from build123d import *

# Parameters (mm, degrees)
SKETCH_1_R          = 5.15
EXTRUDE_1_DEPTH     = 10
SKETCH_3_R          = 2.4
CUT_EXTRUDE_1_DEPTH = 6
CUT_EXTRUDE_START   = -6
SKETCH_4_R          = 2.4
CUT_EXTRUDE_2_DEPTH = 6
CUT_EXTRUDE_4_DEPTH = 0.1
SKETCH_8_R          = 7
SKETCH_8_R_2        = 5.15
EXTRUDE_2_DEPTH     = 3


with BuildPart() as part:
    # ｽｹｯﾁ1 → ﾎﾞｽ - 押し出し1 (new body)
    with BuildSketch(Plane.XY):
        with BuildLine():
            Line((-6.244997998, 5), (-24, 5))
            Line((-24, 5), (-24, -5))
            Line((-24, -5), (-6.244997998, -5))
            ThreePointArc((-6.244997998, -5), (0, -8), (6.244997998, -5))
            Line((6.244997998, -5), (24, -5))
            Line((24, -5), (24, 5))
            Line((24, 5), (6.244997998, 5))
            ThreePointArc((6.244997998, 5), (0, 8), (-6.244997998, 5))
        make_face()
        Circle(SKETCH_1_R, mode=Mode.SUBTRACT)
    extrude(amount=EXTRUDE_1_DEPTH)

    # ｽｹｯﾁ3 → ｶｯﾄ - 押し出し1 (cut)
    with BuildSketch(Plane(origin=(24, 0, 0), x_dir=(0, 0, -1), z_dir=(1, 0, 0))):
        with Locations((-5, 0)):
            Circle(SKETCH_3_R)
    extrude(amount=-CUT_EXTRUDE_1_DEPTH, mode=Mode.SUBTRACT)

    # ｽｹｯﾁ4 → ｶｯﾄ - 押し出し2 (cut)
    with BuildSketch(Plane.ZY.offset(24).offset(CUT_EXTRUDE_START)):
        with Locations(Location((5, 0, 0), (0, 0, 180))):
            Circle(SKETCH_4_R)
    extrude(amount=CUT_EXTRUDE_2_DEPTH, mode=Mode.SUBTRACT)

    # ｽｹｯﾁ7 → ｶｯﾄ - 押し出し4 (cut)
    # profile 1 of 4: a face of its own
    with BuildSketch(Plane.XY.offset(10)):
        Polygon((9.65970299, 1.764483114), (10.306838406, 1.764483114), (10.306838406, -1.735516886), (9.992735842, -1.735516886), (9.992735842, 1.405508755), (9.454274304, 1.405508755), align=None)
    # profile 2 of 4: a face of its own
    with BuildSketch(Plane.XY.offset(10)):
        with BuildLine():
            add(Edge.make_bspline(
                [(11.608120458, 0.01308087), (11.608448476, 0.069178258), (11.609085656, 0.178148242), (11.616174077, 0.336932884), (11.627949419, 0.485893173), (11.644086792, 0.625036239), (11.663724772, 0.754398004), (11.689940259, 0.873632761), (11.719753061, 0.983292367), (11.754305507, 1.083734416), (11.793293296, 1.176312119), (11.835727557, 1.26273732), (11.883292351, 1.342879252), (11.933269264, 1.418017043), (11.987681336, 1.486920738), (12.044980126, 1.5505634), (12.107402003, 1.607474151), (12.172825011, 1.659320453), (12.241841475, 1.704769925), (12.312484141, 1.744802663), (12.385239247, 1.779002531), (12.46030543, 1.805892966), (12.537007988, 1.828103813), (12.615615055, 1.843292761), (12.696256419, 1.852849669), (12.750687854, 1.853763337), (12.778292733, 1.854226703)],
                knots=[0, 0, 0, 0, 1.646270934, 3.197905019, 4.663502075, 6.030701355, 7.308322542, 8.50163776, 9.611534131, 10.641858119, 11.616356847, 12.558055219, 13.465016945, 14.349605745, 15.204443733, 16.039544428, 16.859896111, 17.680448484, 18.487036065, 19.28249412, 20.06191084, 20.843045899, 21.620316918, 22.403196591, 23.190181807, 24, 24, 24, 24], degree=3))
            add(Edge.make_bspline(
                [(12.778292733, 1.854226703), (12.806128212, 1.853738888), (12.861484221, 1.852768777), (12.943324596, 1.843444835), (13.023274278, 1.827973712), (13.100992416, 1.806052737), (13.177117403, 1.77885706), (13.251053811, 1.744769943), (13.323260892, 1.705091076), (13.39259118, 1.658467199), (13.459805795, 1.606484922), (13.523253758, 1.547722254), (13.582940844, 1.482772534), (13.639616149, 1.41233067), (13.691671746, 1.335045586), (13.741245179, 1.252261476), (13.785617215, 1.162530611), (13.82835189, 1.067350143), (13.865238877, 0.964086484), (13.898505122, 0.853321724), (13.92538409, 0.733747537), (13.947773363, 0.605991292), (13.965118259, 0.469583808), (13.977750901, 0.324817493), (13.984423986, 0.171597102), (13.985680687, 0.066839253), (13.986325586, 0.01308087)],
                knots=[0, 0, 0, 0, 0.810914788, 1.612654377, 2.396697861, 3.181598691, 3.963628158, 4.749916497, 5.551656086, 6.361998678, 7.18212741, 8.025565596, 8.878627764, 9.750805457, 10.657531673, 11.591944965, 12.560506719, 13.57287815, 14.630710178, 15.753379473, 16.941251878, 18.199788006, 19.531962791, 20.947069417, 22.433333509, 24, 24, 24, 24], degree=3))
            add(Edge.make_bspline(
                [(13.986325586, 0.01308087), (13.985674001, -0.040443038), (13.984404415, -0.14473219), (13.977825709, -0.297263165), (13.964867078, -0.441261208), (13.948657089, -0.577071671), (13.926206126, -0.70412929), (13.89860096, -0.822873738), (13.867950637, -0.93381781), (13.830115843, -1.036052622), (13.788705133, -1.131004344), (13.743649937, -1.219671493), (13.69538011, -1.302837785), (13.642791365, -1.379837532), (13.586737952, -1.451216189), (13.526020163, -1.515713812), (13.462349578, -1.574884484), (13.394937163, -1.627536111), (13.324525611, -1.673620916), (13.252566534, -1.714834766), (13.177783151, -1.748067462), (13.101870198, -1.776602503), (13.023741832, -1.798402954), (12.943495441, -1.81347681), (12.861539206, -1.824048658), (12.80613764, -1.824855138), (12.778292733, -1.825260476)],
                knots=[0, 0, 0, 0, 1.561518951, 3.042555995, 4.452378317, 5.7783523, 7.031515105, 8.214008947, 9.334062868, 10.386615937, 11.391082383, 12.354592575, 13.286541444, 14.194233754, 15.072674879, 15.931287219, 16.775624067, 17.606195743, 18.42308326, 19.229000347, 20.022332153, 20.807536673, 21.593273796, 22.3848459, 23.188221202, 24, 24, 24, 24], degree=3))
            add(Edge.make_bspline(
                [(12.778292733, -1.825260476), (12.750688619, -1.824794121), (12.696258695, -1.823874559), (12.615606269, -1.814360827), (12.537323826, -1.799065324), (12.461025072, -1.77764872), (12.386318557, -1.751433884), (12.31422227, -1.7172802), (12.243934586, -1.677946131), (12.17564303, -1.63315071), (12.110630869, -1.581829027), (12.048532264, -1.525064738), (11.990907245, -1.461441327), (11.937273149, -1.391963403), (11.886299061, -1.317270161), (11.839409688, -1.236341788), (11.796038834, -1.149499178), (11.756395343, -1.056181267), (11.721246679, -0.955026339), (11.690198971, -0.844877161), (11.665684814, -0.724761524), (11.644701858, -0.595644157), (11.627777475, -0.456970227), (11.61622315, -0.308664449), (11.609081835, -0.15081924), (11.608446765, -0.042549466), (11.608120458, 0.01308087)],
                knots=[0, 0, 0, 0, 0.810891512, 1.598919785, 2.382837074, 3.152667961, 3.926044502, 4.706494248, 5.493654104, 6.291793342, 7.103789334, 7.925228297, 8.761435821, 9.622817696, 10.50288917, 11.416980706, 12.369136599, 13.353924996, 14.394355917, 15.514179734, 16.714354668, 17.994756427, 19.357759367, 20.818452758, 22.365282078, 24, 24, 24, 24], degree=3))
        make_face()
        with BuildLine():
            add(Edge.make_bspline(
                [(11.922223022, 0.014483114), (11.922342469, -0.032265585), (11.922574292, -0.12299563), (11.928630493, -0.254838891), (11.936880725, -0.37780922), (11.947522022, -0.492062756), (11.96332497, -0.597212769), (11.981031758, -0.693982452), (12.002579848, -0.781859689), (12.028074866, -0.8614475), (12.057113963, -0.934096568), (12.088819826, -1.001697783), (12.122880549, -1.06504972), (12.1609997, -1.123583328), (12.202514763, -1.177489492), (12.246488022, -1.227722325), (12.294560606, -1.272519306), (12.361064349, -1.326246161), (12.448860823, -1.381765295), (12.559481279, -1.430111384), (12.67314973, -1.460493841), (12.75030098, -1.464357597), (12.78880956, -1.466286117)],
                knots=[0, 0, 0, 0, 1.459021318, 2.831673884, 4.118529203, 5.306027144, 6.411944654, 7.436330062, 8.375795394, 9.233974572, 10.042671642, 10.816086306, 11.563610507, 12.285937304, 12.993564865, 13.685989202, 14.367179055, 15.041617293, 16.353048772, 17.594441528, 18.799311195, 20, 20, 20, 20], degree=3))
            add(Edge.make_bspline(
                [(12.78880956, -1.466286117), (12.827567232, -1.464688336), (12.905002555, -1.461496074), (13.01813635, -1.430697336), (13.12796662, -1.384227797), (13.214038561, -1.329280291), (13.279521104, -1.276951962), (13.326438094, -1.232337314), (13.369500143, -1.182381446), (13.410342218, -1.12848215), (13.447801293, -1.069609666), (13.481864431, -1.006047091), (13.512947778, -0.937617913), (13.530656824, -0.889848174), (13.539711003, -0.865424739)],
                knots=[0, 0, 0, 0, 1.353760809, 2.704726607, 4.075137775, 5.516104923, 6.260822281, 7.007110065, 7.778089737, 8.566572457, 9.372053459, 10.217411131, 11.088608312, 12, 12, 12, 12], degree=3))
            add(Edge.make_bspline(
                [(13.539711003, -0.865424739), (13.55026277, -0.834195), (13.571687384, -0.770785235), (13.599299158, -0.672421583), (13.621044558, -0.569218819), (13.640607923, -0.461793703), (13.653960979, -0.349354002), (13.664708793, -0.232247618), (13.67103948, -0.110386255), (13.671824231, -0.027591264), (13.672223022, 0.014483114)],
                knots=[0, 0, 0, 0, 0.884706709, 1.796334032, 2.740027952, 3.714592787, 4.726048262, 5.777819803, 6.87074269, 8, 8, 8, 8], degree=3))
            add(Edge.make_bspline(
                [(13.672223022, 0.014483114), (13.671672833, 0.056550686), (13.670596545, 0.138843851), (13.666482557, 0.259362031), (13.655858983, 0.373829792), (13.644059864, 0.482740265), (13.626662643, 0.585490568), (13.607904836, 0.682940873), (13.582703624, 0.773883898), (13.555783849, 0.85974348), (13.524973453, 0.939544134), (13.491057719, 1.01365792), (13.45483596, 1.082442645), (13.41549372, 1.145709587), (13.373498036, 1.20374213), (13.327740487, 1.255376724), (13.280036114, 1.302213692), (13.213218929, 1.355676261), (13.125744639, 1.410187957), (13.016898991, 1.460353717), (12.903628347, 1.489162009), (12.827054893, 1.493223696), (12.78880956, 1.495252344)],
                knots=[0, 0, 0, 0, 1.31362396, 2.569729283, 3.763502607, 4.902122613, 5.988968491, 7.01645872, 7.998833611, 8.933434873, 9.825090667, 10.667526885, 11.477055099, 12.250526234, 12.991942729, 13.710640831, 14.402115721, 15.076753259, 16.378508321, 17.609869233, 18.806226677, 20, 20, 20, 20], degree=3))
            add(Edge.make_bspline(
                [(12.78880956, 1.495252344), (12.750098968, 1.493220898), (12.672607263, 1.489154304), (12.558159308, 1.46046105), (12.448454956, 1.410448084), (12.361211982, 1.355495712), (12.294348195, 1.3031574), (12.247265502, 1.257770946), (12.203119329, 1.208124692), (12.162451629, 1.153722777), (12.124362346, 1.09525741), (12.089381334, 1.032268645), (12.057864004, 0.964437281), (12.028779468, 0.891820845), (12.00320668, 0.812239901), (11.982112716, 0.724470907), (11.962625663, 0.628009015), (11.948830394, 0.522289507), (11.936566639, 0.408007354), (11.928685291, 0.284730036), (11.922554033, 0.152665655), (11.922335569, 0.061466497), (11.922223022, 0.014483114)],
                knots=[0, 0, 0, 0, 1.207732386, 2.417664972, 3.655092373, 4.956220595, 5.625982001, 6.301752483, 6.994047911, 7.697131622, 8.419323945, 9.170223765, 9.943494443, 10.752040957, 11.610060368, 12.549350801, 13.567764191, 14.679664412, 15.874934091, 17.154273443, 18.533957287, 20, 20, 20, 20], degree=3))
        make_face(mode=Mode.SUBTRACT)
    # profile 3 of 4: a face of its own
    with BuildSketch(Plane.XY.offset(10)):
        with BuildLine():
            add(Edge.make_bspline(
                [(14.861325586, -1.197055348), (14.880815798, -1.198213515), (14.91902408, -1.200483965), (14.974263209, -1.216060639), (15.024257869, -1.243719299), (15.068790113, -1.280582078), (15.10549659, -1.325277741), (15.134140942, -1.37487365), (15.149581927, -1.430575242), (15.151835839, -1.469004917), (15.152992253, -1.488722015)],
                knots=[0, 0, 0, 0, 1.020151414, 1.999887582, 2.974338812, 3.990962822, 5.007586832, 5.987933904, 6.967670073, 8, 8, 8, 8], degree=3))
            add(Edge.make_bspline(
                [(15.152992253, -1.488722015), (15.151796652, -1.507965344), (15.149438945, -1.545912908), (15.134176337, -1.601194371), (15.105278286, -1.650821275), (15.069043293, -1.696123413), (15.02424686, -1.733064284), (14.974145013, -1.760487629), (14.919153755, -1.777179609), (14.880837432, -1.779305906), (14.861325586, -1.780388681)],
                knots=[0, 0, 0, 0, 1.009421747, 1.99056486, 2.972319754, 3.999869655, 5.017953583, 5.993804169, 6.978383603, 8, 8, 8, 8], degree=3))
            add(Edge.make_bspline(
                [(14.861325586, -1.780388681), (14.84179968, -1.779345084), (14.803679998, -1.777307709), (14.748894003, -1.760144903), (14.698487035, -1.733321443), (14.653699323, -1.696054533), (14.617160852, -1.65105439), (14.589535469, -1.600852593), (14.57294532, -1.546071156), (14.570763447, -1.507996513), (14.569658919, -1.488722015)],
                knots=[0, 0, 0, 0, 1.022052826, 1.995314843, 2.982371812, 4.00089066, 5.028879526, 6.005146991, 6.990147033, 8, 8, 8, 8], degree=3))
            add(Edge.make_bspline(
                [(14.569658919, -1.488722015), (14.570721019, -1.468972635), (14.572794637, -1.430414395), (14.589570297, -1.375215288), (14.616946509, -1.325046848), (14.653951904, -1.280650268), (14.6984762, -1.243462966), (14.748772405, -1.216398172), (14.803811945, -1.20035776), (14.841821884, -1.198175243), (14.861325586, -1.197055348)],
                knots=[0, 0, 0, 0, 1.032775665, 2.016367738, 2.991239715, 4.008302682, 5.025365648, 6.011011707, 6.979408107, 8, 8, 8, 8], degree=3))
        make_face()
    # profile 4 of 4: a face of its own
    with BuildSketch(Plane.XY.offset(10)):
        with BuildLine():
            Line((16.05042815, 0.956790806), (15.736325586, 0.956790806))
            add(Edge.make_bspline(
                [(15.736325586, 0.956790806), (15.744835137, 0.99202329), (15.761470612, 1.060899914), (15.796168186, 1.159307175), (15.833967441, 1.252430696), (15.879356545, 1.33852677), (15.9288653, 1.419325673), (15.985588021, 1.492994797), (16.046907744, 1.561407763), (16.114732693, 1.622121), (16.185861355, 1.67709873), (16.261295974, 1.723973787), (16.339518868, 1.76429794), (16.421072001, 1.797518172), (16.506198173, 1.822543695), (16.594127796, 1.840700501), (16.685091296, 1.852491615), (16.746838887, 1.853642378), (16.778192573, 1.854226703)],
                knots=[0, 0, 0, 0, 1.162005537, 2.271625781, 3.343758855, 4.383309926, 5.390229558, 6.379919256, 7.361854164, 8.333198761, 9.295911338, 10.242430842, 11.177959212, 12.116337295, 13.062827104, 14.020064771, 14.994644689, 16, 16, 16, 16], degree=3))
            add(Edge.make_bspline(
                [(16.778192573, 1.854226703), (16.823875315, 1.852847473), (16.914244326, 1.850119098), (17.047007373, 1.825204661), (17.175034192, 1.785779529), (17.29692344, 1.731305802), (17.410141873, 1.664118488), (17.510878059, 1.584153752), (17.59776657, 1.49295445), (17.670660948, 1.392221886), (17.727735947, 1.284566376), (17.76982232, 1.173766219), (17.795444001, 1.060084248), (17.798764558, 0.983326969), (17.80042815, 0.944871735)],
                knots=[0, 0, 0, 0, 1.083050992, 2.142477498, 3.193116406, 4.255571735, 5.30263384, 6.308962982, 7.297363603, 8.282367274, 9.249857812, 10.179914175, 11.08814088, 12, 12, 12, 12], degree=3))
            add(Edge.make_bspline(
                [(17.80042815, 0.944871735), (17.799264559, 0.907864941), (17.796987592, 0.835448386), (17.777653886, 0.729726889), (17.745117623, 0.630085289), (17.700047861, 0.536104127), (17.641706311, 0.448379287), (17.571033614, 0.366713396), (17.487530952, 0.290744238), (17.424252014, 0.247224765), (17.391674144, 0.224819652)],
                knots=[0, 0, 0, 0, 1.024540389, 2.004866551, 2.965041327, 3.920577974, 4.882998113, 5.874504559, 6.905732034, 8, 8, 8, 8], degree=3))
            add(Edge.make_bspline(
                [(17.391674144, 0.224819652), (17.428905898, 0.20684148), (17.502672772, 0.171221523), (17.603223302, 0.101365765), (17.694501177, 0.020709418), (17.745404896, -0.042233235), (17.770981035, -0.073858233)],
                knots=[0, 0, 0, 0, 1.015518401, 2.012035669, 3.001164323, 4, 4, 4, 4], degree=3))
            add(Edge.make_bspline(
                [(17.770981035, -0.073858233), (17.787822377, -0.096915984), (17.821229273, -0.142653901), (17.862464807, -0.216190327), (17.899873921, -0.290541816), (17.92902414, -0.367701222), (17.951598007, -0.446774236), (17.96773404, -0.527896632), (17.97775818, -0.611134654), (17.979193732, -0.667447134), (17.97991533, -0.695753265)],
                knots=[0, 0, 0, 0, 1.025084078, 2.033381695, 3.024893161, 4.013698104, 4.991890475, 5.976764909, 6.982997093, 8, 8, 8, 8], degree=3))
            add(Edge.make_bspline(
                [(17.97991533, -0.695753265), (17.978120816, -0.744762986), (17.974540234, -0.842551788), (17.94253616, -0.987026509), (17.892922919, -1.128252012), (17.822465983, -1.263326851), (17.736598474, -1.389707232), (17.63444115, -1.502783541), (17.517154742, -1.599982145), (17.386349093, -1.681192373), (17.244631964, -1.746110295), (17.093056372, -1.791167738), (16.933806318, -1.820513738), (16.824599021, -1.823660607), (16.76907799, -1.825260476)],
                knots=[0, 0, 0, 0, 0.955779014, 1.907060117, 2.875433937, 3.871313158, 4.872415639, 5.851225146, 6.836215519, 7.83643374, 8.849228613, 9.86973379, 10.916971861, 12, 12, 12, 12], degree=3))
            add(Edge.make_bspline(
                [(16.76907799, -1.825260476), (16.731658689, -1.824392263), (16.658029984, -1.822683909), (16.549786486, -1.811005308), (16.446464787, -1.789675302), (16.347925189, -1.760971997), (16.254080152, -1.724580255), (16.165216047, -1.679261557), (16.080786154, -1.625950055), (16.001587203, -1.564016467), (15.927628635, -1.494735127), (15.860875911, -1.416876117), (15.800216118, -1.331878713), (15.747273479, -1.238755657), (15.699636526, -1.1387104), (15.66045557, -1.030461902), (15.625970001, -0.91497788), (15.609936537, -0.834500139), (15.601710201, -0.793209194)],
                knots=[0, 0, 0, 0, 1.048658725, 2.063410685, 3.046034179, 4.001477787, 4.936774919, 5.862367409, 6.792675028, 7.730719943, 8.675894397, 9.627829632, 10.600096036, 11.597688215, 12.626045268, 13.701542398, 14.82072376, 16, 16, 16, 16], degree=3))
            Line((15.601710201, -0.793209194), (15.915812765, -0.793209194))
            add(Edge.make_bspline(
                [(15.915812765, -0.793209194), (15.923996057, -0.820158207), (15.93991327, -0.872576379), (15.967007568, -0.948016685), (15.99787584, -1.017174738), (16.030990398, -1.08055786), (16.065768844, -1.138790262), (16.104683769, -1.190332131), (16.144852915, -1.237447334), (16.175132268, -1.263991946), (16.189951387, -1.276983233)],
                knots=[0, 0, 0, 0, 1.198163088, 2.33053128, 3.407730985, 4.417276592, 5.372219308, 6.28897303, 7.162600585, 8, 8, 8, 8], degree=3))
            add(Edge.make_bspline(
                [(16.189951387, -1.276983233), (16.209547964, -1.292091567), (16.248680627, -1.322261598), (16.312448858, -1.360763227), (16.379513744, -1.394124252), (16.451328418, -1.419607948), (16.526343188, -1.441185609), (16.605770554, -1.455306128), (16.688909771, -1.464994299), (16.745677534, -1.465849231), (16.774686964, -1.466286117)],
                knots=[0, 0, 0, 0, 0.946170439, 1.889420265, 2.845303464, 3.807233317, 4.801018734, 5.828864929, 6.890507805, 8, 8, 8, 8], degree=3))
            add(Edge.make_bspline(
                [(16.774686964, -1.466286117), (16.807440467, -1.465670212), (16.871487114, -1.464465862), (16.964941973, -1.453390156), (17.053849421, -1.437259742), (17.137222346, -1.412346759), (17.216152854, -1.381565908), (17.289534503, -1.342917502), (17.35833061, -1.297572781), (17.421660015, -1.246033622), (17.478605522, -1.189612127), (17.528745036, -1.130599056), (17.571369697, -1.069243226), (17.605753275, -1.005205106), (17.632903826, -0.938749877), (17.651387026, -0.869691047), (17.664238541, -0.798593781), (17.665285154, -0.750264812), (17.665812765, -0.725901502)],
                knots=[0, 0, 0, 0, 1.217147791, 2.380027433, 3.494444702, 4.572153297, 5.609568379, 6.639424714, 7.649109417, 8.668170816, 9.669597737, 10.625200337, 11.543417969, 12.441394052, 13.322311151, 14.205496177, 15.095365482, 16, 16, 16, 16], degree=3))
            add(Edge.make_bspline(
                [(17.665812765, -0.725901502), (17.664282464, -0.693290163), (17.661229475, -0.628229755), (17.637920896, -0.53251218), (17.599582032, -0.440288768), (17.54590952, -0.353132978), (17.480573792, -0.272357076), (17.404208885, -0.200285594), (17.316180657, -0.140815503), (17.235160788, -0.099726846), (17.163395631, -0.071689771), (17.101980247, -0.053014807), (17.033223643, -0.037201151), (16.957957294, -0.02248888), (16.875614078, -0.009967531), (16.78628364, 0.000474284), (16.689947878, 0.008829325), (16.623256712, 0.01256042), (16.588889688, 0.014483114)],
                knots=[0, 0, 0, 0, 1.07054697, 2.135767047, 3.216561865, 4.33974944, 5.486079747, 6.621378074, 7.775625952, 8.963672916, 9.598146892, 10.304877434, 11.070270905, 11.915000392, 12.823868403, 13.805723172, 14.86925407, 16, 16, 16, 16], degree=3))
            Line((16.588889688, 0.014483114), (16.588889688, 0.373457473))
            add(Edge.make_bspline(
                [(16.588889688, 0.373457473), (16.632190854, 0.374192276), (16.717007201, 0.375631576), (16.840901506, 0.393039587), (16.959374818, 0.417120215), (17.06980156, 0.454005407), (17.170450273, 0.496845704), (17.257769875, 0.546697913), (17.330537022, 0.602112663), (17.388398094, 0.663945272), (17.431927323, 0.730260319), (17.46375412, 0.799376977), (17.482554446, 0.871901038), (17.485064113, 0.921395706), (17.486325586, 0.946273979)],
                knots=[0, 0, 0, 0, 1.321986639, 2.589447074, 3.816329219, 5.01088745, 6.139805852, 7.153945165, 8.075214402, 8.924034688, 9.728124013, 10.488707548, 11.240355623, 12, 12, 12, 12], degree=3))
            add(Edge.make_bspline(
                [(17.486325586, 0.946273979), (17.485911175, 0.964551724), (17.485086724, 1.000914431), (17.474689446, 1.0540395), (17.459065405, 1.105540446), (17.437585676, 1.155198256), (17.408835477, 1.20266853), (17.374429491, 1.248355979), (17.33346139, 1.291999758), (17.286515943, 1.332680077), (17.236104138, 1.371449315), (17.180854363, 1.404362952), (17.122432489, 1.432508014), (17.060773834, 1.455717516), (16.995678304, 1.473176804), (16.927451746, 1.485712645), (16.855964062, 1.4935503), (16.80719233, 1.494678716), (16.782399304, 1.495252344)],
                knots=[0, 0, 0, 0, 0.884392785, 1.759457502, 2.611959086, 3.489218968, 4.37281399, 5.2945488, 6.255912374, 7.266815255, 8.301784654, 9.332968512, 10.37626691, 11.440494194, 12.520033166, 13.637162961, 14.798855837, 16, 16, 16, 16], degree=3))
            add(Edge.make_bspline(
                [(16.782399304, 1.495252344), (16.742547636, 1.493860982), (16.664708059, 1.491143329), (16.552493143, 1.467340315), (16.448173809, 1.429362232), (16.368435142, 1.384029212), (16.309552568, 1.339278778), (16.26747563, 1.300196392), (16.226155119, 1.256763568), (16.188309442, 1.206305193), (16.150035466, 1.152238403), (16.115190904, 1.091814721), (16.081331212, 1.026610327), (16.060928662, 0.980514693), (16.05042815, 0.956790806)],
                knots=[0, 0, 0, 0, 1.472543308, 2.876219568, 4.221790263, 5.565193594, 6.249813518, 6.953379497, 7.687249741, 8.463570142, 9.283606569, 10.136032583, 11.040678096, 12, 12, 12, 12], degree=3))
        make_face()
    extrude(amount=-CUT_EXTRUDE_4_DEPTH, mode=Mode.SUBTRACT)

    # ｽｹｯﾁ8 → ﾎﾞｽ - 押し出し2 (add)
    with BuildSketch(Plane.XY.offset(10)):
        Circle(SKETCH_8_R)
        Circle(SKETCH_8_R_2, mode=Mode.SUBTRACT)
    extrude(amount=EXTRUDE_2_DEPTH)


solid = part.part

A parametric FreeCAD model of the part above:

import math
import FreeCAD as App
import Part
import Sketcher
from FreeCAD import Vector
Q = App.Units.Quantity

doc = App.newDocument("Part")
params = doc.addObject("Spreadsheet::Sheet", "Params")
for row, (alias, value) in enumerate([
    ("sketch1_radius", "8 mm"),
    ("sketch1_diameter", "10.3 mm"),
    ("sketch1_height", "10 mm"),
    ("pad1_length", "10 mm"),
    ("sketch2_diameter", "4.8 mm"),
    ("pocket1_length", "6 mm"),
    ("sketch3_diameter", "4.8 mm"),
    ("pocket2_length", "6 mm"),
    ("sketch4_height", "3.5 mm"),
    ("pocket3_length", "0.1 mm"),
    ("sketch5_diameter", "14 mm"),
    ("sketch5_diameter2", "10.3 mm"),
    ("pad2_length", "3 mm"),
], start=1):
    params.set(f"A{row}", alias)
    params.set(f"B{row}", "=" + value)
    params.setAlias(f"B{row}", alias)

body = doc.addObject("PartDesign::Body", "Body")

sketch1 = body.newObject("Sketcher::SketchObject", "Sketch")
sketch1.AttachmentSupport = (doc.getObject("XY_Plane"), [""])
sketch1.MapMode = "FlatFace"
sketch1.addGeometry(Part.LineSegment(Vector(-6.244998, 5, 0), Vector(-24, 5, 0)), False)
sketch1.addGeometry(Part.LineSegment(Vector(-24, 5, 0), Vector(-24, -5, 0)), False)
sketch1.addGeometry(Part.LineSegment(Vector(-24, -5, 0), Vector(-6.244998, -5, 0)), False)
sketch1.addGeometry(Part.ArcOfCircle(Part.Circle(Vector(0, 0, 0), Vector(0, 0, 1), 8), math.radians(-141.317813), math.radians(-38.682187)), False)
sketch1.addGeometry(Part.LineSegment(Vector(6.244998, -5, 0), Vector(24, -5, 0)), False)
sketch1.addGeometry(Part.LineSegment(Vector(24, -5, 0), Vector(24, 5, 0)), False)
sketch1.addGeometry(Part.LineSegment(Vector(24, 5, 0), Vector(6.244998, 5, 0)), False)
sketch1.addGeometry(Part.ArcOfCircle(Part.Circle(Vector(0, 0, 0), Vector(0, 0, 1), 8), math.radians(38.682187), math.radians(141.317813)), False)
sketch1.addGeometry(Part.Circle(Vector(0, 0, 0), Vector(0, 0, 1), 5.15), False)
sketch1.addConstraint(Sketcher.Constraint("Coincident", 0, 2, 1, 1))
sketch1.addConstraint(Sketcher.Constraint("Coincident", 1, 2, 2, 1))
sketch1.addConstraint(Sketcher.Constraint("Coincident", 2, 2, 3, 1))
sketch1.addConstraint(Sketcher.Constraint("Coincident", 3, 2, 4, 1))
sketch1.addConstraint(Sketcher.Constraint("Coincident", 4, 2, 5, 1))
sketch1.addConstraint(Sketcher.Constraint("Coincident", 5, 2, 6, 1))
sketch1.addConstraint(Sketcher.Constraint("Coincident", 6, 2, 7, 1))
sketch1.addConstraint(Sketcher.Constraint("Coincident", 7, 2, 0, 1))
sketch1.addConstraint(Sketcher.Constraint("Horizontal", 0))
sketch1.addConstraint(Sketcher.Constraint("Vertical", 1))
sketch1.addConstraint(Sketcher.Constraint("Horizontal", 2))
sketch1.addConstraint(Sketcher.Constraint("Horizontal", 4))
sketch1.addConstraint(Sketcher.Constraint("Vertical", 5))
sketch1.addConstraint(Sketcher.Constraint("Horizontal", 6))
sketch1.addConstraint(Sketcher.Constraint("Coincident", 3, 3, -1, 1))
sketch1.addConstraint(Sketcher.Constraint("Coincident", 7, 3, -1, 1))
sketch1.addConstraint(Sketcher.Constraint("Coincident", 8, 3, -1, 1))
sketch1.addConstraint(Sketcher.Constraint("Equal", 3, 7))
sketch1.addConstraint(Sketcher.Constraint("Symmetric", 0, 2, 4, 2, -1, 1))
sketch1.addConstraint(Sketcher.Constraint("Horizontal", 2, 2, 3, 2))
sketch1.addConstraint(Sketcher.Constraint("Horizontal", 0, 2, 5, 2))
sketch1.addConstraint(Sketcher.Constraint("Radius", 3, Q("8 mm")))
sketch1.addConstraint(Sketcher.Constraint("Diameter", 8, Q("10.3 mm")))
sketch1.addConstraint(Sketcher.Constraint("DistanceY", 1, 2, 1, 1, Q("10 mm")))
sketch1.addConstraint(Sketcher.Constraint("DistanceX", 0, 2, -1, 1, Q("24 mm")))
sketch1.setExpression("Constraints[21]", "Params.sketch1_radius")
sketch1.setExpression("Constraints[22]", "Params.sketch1_diameter")
sketch1.setExpression("Constraints[23]", "Params.sketch1_height")
pad1 = body.newObject("PartDesign::Pad", "Pad")
pad1.Profile = sketch1
pad1.setExpression("Length", "Params.pad1_length")

sketch2 = body.newObject("Sketcher::SketchObject", "Sketch001")
sketch2.AttachmentSupport = (doc.getObject("YZ_Plane"), [""])
sketch2.MapMode = "FlatFace"
sketch2.AttachmentOffset = App.Placement(Vector(0, 0, 24), App.Rotation())
sketch2.addGeometry(Part.Circle(Vector(0, 5, 0), Vector(0, 0, 1), 2.4), False)
sketch2.addConstraint(Sketcher.Constraint("PointOnObject", 0, 3, -2))
sketch2.addConstraint(Sketcher.Constraint("Diameter", 0, Q("4.8 mm")))
sketch2.addConstraint(Sketcher.Constraint("DistanceY", -1, 1, 0, 3, Q("5 mm")))
sketch2.setExpression("Constraints[1]", "Params.sketch2_diameter")
pocket1 = body.newObject("PartDesign::Pocket", "Pocket")
pocket1.Profile = sketch2
pocket1.setExpression("Length", "Params.pocket1_length")

sketch3 = body.newObject("Sketcher::SketchObject", "Sketch002")
sketch3.AttachmentSupport = (doc.getObject("YZ_Plane"), [""])
sketch3.MapMode = "FlatFace"
sketch3.AttachmentOffset = App.Placement(Vector(0, 0, -18), App.Rotation())
sketch3.addGeometry(Part.Circle(Vector(0, 5, 0), Vector(0, 0, 1), 2.4), False)
sketch3.addConstraint(Sketcher.Constraint("PointOnObject", 0, 3, -2))
sketch3.addConstraint(Sketcher.Constraint("Diameter", 0, Q("4.8 mm")))
sketch3.addConstraint(Sketcher.Constraint("DistanceY", -1, 1, 0, 3, Q("5 mm")))
sketch3.setExpression("Constraints[1]", "Params.sketch3_diameter")
pocket2 = body.newObject("PartDesign::Pocket", "Pocket001")
pocket2.Profile = sketch3
pocket2.setExpression("Length", "Params.pocket2_length")

sketch4 = body.newObject("Sketcher::SketchObject", "Sketch003")
sketch4.AttachmentSupport = (doc.getObject("XY_Plane"), [""])
sketch4.MapMode = "FlatFace"
sketch4.AttachmentOffset = App.Placement(Vector(0, 0, 10), App.Rotation())
sketch4.addGeometry(Part.LineSegment(Vector(10.306838, 1.764483, 0), Vector(9.659703, 1.764483, 0)), False)
sketch4.addGeometry(Part.LineSegment(Vector(9.659703, 1.764483, 0), Vector(9.454274, 1.405509, 0)), False)
sketch4.addGeometry(Part.LineSegment(Vector(9.454274, 1.405509, 0), Vector(9.992736, 1.405509, 0)), False)
sketch4.addGeometry(Part.LineSegment(Vector(9.992736, 1.405509, 0), Vector(9.992736, -1.735517, 0)), False)
sketch4.addGeometry(Part.LineSegment(Vector(9.992736, -1.735517, 0), Vector(10.306838, -1.735517, 0)), False)
sketch4.addGeometry(Part.LineSegment(Vector(10.306838, -1.735517, 0), Vector(10.306838, 1.764483, 0)), False)
sketch4.addGeometry(Part.BSplineCurve([Vector(11.60812, 0.013081, 0), Vector(11.608448, 0.069178, 0), Vector(11.609086, 0.178148, 0), Vector(11.616174, 0.336933, 0), Vector(11.627949, 0.485893, 0), Vector(11.644087, 0.625036, 0), Vector(11.663725, 0.754398, 0), Vector(11.68994, 0.873633, 0), Vector(11.719753, 0.983292, 0), Vector(11.754306, 1.083734, 0), Vector(11.793293, 1.176312, 0), Vector(11.835728, 1.262737, 0), Vector(11.883292, 1.342879, 0), Vector(11.933269, 1.418017, 0), Vector(11.987681, 1.486921, 0), Vector(12.04498, 1.550563, 0), Vector(12.107402, 1.607474, 0), Vector(12.172825, 1.65932, 0), Vector(12.241841, 1.70477, 0), Vector(12.312484, 1.744803, 0), Vector(12.385239, 1.779003, 0), Vector(12.460305, 1.805893, 0), Vector(12.537008, 1.828104, 0), Vector(12.615615, 1.843293, 0), Vector(12.696256, 1.85285, 0), Vector(12.750688, 1.853763, 0), Vector(12.778293, 1.854227, 0)], [4, 1, 1, 1, 1, 1, 1, 1, 1, 1, 1, 1, 1, 1, 1, 1, 1, 1, 1, 1, 1, 1, 1, 1, 4], [0, 1.646270934, 3.197905019, 4.663502075, 6.030701355, 7.308322542, 8.50163776, 9.611534131, 10.641858119, 11.616356847, 12.558055219, 13.465016945, 14.349605745, 15.204443733, 16.039544428, 16.859896111, 17.680448484, 18.487036065, 19.28249412, 20.06191084, 20.843045899, 21.620316918, 22.403196591, 23.190181807, 24], False, 3, [1, 1, 1, 1, 1, 1, 1, 1, 1, 1, 1, 1, 1, 1, 1, 1, 1, 1, 1, 1, 1, 1, 1, 1, 1, 1, 1], False), False)
sketch4.addGeometry(Part.BSplineCurve([Vector(12.778293, -1.82526, 0), Vector(12.750689, -1.824794, 0), Vector(12.696259, -1.823875, 0), Vector(12.615606, -1.814361, 0), Vector(12.537324, -1.799065, 0), Vector(12.461025, -1.777649, 0), Vector(12.386319, -1.751434, 0), Vector(12.314222, -1.71728, 0), Vector(12.243935, -1.677946, 0), Vector(12.175643, -1.633151, 0), Vector(12.110631, -1.581829, 0), Vector(12.048532, -1.525065, 0), Vector(11.990907, -1.461441, 0), Vector(11.937273, -1.391963, 0), Vector(11.886299, -1.31727, 0), Vector(11.83941, -1.236342, 0), Vector(11.796039, -1.149499, 0), Vector(11.756395, -1.056181, 0), Vector(11.721247, -0.955026, 0), Vector(11.690199, -0.844877, 0), Vector(11.665685, -0.724762, 0), Vector(11.644702, -0.595644, 0), Vector(11.627777, -0.45697, 0), Vector(11.616223, -0.308664, 0), Vector(11.609082, -0.150819, 0), Vector(11.608447, -0.042549, 0), Vector(11.60812, 0.013081, 0)], [4, 1, 1, 1, 1, 1, 1, 1, 1, 1, 1, 1, 1, 1, 1, 1, 1, 1, 1, 1, 1, 1, 1, 1, 4], [0, 0.810891512, 1.598919785, 2.382837074, 3.152667961, 3.926044502, 4.706494248, 5.493654104, 6.291793342, 7.103789334, 7.925228297, 8.761435821, 9.622817696, 10.50288917, 11.416980706, 12.369136599, 13.353924996, 14.394355917, 15.514179734, 16.714354668, 17.994756427, 19.357759367, 20.818452758, 22.365282078, 24], False, 3, [1, 1, 1, 1, 1, 1, 1, 1, 1, 1, 1, 1, 1, 1, 1, 1, 1, 1, 1, 1, 1, 1, 1, 1, 1, 1, 1], False), False)
sketch4.addGeometry(Part.BSplineCurve([Vector(13.986326, 0.013081, 0), Vector(13.985674, -0.040443, 0), Vector(13.984404, -0.144732, 0), Vector(13.977826, -0.297263, 0), Vector(13.964867, -0.441261, 0), Vector(13.948657, -0.577072, 0), Vector(13.926206, -0.704129, 0), Vector(13.898601, -0.822874, 0), Vector(13.867951, -0.933818, 0), Vector(13.830116, -1.036053, 0), Vector(13.788705, -1.131004, 0), Vector(13.74365, -1.219671, 0), Vector(13.69538, -1.302838, 0), Vector(13.642791, -1.379838, 0), Vector(13.586738, -1.451216, 0), Vector(13.52602, -1.515714, 0), Vector(13.46235, -1.574884, 0), Vector(13.394937, -1.627536, 0), Vector(13.324526, -1.673621, 0), Vector(13.252567, -1.714835, 0), Vector(13.177783, -1.748067, 0), Vector(13.10187, -1.776603, 0), Vector(13.023742, -1.798403, 0), Vector(12.943495, -1.813477, 0), Vector(12.861539, -1.824049, 0), Vector(12.806138, -1.824855, 0), Vector(12.778293, -1.82526, 0)], [4, 1, 1, 1, 1, 1, 1, 1, 1, 1, 1, 1, 1, 1, 1, 1, 1, 1, 1, 1, 1, 1, 1, 1, 4], [0, 1.561518951, 3.042555995, 4.452378317, 5.7783523, 7.031515105, 8.214008947, 9.334062868, 10.386615937, 11.391082383, 12.354592575, 13.286541444, 14.194233754, 15.072674879, 15.931287219, 16.775624067, 17.606195743, 18.42308326, 19.229000347, 20.022332153, 20.807536673, 21.593273796, 22.3848459, 23.188221202, 24], False, 3, [1, 1, 1, 1, 1, 1, 1, 1, 1, 1, 1, 1, 1, 1, 1, 1, 1, 1, 1, 1, 1, 1, 1, 1, 1, 1, 1], False), False)
sketch4.addGeometry(Part.BSplineCurve([Vector(12.778293, 1.854227, 0), Vector(12.806128, 1.853739, 0), Vector(12.861484, 1.852769, 0), Vector(12.943325, 1.843445, 0), Vector(13.023274, 1.827974, 0), Vector(13.100992, 1.806053, 0), Vector(13.177117, 1.778857, 0), Vector(13.251054, 1.74477, 0), Vector(13.323261, 1.705091, 0), Vector(13.392591, 1.658467, 0), Vector(13.459806, 1.606485, 0), Vector(13.523254, 1.547722, 0), Vector(13.582941, 1.482773, 0), Vector(13.639616, 1.412331, 0), Vector(13.691672, 1.335046, 0), Vector(13.741245, 1.252261, 0), Vector(13.785617, 1.162531, 0), Vector(13.828352, 1.06735, 0), Vector(13.865239, 0.964086, 0), Vector(13.898505, 0.853322, 0), Vector(13.925384, 0.733748, 0), Vector(13.947773, 0.605991, 0), Vector(13.965118, 0.469584, 0), Vector(13.977751, 0.324817, 0), Vector(13.984424, 0.171597, 0), Vector(13.985681, 0.066839, 0), Vector(13.986326, 0.013081, 0)], [4, 1, 1, 1, 1, 1, 1, 1, 1, 1, 1, 1, 1, 1, 1, 1, 1, 1, 1, 1, 1, 1, 1, 1, 4], [0, 0.810914788, 1.612654377, 2.396697861, 3.181598691, 3.963628158, 4.749916497, 5.551656086, 6.361998678, 7.18212741, 8.025565596, 8.878627764, 9.750805457, 10.657531673, 11.591944965, 12.560506719, 13.57287815, 14.630710178, 15.753379473, 16.941251878, 18.199788006, 19.531962791, 20.947069417, 22.433333509, 24], False, 3, [1, 1, 1, 1, 1, 1, 1, 1, 1, 1, 1, 1, 1, 1, 1, 1, 1, 1, 1, 1, 1, 1, 1, 1, 1, 1, 1], False), False)
sketch4.addGeometry(Part.BSplineCurve([Vector(12.78881, 1.495252, 0), Vector(12.750099, 1.493221, 0), Vector(12.672607, 1.489154, 0), Vector(12.558159, 1.460461, 0), Vector(12.448455, 1.410448, 0), Vector(12.361212, 1.355496, 0), Vector(12.294348, 1.303157, 0), Vector(12.247266, 1.257771, 0), Vector(12.203119, 1.208125, 0), Vector(12.162452, 1.153723, 0), Vector(12.124362, 1.095257, 0), Vector(12.089381, 1.032269, 0), Vector(12.057864, 0.964437, 0), Vector(12.028779, 0.891821, 0), Vector(12.003207, 0.81224, 0), Vector(11.982113, 0.724471, 0), Vector(11.962626, 0.628009, 0), Vector(11.94883, 0.52229, 0), Vector(11.936567, 0.408007, 0), Vector(11.928685, 0.28473, 0), Vector(11.922554, 0.152666, 0), Vector(11.922336, 0.061466, 0), Vector(11.922223, 0.014483, 0)], [4, 1, 1, 1, 1, 1, 1, 1, 1, 1, 1, 1, 1, 1, 1, 1, 1, 1, 1, 1, 4], [0, 1.207732386, 2.417664972, 3.655092373, 4.956220595, 5.625982001, 6.301752483, 6.994047911, 7.697131622, 8.419323945, 9.170223765, 9.943494443, 10.752040957, 11.610060368, 12.549350801, 13.567764191, 14.679664412, 15.874934091, 17.154273443, 18.533957287, 20], False, 3, [1, 1, 1, 1, 1, 1, 1, 1, 1, 1, 1, 1, 1, 1, 1, 1, 1, 1, 1, 1, 1, 1, 1], False), False)
sketch4.addGeometry(Part.BSplineCurve([Vector(13.672223, 0.014483, 0), Vector(13.671673, 0.056551, 0), Vector(13.670597, 0.138844, 0), Vector(13.666483, 0.259362, 0), Vector(13.655859, 0.37383, 0), Vector(13.64406, 0.48274, 0), Vector(13.626663, 0.585491, 0), Vector(13.607905, 0.682941, 0), Vector(13.582704, 0.773884, 0), Vector(13.555784, 0.859743, 0), Vector(13.524973, 0.939544, 0), Vector(13.491058, 1.013658, 0), Vector(13.454836, 1.082443, 0), Vector(13.415494, 1.14571, 0), Vector(13.373498, 1.203742, 0), Vector(13.32774, 1.255377, 0), Vector(13.280036, 1.302214, 0), Vector(13.213219, 1.355676, 0), Vector(13.125745, 1.410188, 0), Vector(13.016899, 1.460354, 0), Vector(12.903628, 1.489162, 0), Vector(12.827055, 1.493224, 0), Vector(12.78881, 1.495252, 0)], [4, 1, 1, 1, 1, 1, 1, 1, 1, 1, 1, 1, 1, 1, 1, 1, 1, 1, 1, 1, 4], [0, 1.31362396, 2.569729283, 3.763502607, 4.902122613, 5.988968491, 7.01645872, 7.998833611, 8.933434873, 9.825090667, 10.667526885, 11.477055099, 12.250526234, 12.991942729, 13.710640831, 14.402115721, 15.076753259, 16.378508321, 17.609869233, 18.806226677, 20], False, 3, [1, 1, 1, 1, 1, 1, 1, 1, 1, 1, 1, 1, 1, 1, 1, 1, 1, 1, 1, 1, 1, 1, 1], False), False)
sketch4.addGeometry(Part.BSplineCurve([Vector(13.539711, -0.865425, 0), Vector(13.550263, -0.834195, 0), Vector(13.571687, -0.770785, 0), Vector(13.599299, -0.672422, 0), Vector(13.621045, -0.569219, 0), Vector(13.640608, -0.461794, 0), Vector(13.653961, -0.349354, 0), Vector(13.664709, -0.232248, 0), Vector(13.671039, -0.110386, 0), Vector(13.671824, -0.027591, 0), Vector(13.672223, 0.014483, 0)], [4, 1, 1, 1, 1, 1, 1, 1, 4], [0, 0.884706709, 1.796334032, 2.740027952, 3.714592787, 4.726048262, 5.777819803, 6.87074269, 8], False, 3, [1, 1, 1, 1, 1, 1, 1, 1, 1, 1, 1], False), False)
sketch4.addGeometry(Part.BSplineCurve([Vector(12.78881, -1.466286, 0), Vector(12.827567, -1.464688, 0), Vector(12.905003, -1.461496, 0), Vector(13.018136, -1.430697, 0), Vector(13.127967, -1.384228, 0), Vector(13.214039, -1.32928, 0), Vector(13.279521, -1.276952, 0), Vector(13.326438, -1.232337, 0), Vector(13.3695, -1.182381, 0), Vector(13.410342, -1.128482, 0), Vector(13.447801, -1.06961, 0), Vector(13.481864, -1.006047, 0), Vector(13.512948, -0.937618, 0), Vector(13.530657, -0.889848, 0), Vector(13.539711, -0.865425, 0)], [4, 1, 1, 1, 1, 1, 1, 1, 1, 1, 1, 1, 4], [0, 1.353760809, 2.704726607, 4.075137775, 5.516104923, 6.260822281, 7.007110065, 7.778089737, 8.566572457, 9.372053459, 10.217411131, 11.088608312, 12], False, 3, [1, 1, 1, 1, 1, 1, 1, 1, 1, 1, 1, 1, 1, 1, 1], False), False)
sketch4.addGeometry(Part.BSplineCurve([Vector(11.922223, 0.014483, 0), Vector(11.922342, -0.032266, 0), Vector(11.922574, -0.122996, 0), Vector(11.92863, -0.254839, 0), Vector(11.936881, -0.377809, 0), Vector(11.947522, -0.492063, 0), Vector(11.963325, -0.597213, 0), Vector(11.981032, -0.693982, 0), Vector(12.00258, -0.78186, 0), Vector(12.028075, -0.861448, 0), Vector(12.057114, -0.934097, 0), Vector(12.08882, -1.001698, 0), Vector(12.122881, -1.06505, 0), Vector(12.161, -1.123583, 0), Vector(12.202515, -1.177489, 0), Vector(12.246488, -1.227722, 0), Vector(12.294561, -1.272519, 0), Vector(12.361064, -1.326246, 0), Vector(12.448861, -1.381765, 0), Vector(12.559481, -1.430111, 0), Vector(12.67315, -1.460494, 0), Vector(12.750301, -1.464358, 0), Vector(12.78881, -1.466286, 0)], [4, 1, 1, 1, 1, 1, 1, 1, 1, 1, 1, 1, 1, 1, 1, 1, 1, 1, 1, 1, 4], [0, 1.459021318, 2.831673884, 4.118529203, 5.306027144, 6.411944654, 7.436330062, 8.375795394, 9.233974572, 10.042671642, 10.816086306, 11.563610507, 12.285937304, 12.993564865, 13.685989202, 14.367179055, 15.041617293, 16.353048772, 17.594441528, 18.799311195, 20], False, 3, [1, 1, 1, 1, 1, 1, 1, 1, 1, 1, 1, 1, 1, 1, 1, 1, 1, 1, 1, 1, 1, 1, 1], False), False)
sketch4.addGeometry(Part.BSplineCurve([Vector(14.861326, -1.197055, 0), Vector(14.880816, -1.198214, 0), Vector(14.919024, -1.200484, 0), Vector(14.974263, -1.216061, 0), Vector(15.024258, -1.243719, 0), Vector(15.06879, -1.280582, 0), Vector(15.105497, -1.325278, 0), Vector(15.134141, -1.374874, 0), Vector(15.149582, -1.430575, 0), Vector(15.151836, -1.469005, 0), Vector(15.152992, -1.488722, 0)], [4, 1, 1, 1, 1, 1, 1, 1, 4], [0, 1.020151414, 1.999887582, 2.974338812, 3.990962822, 5.007586832, 5.987933904, 6.967670073, 8], False, 3, [1, 1, 1, 1, 1, 1, 1, 1, 1, 1, 1], False), False)
sketch4.addGeometry(Part.BSplineCurve([Vector(14.569659, -1.488722, 0), Vector(14.570721, -1.468973, 0), Vector(14.572795, -1.430414, 0), Vector(14.58957, -1.375215, 0), Vector(14.616947, -1.325047, 0), Vector(14.653952, -1.28065, 0), Vector(14.698476, -1.243463, 0), Vector(14.748772, -1.216398, 0), Vector(14.803812, -1.200358, 0), Vector(14.841822, -1.198175, 0), Vector(14.861326, -1.197055, 0)], [4, 1, 1, 1, 1, 1, 1, 1, 4], [0, 1.032775665, 2.016367738, 2.991239715, 4.008302682, 5.025365648, 6.011011707, 6.979408107, 8], False, 3, [1, 1, 1, 1, 1, 1, 1, 1, 1, 1, 1], False), False)
sketch4.addGeometry(Part.BSplineCurve([Vector(14.861326, -1.780389, 0), Vector(14.8418, -1.779345, 0), Vector(14.80368, -1.777308, 0), Vector(14.748894, -1.760145, 0), Vector(14.698487, -1.733321, 0), Vector(14.653699, -1.696055, 0), Vector(14.617161, -1.651054, 0), Vector(14.589535, -1.600853, 0), Vector(14.572945, -1.546071, 0), Vector(14.570763, -1.507997, 0), Vector(14.569659, -1.488722, 0)], [4, 1, 1, 1, 1, 1, 1, 1, 4], [0, 1.022052826, 1.995314843, 2.982371812, 4.00089066, 5.028879526, 6.005146991, 6.990147033, 8], False, 3, [1, 1, 1, 1, 1, 1, 1, 1, 1, 1, 1], False), False)
sketch4.addGeometry(Part.BSplineCurve([Vector(15.152992, -1.488722, 0), Vector(15.151797, -1.507965, 0), Vector(15.149439, -1.545913, 0), Vector(15.134176, -1.601194, 0), Vector(15.105278, -1.650821, 0), Vector(15.069043, -1.696123, 0), Vector(15.024247, -1.733064, 0), Vector(14.974145, -1.760488, 0), Vector(14.919154, -1.77718, 0), Vector(14.880837, -1.779306, 0), Vector(14.861326, -1.780389, 0)], [4, 1, 1, 1, 1, 1, 1, 1, 4], [0, 1.009421747, 1.99056486, 2.972319754, 3.999869655, 5.017953583, 5.993804169, 6.978383603, 8], False, 3, [1, 1, 1, 1, 1, 1, 1, 1, 1, 1, 1], False), False)
sketch4.addGeometry(Part.LineSegment(Vector(15.736326, 0.956791, 0), Vector(16.050428, 0.956791, 0)), False)
sketch4.addGeometry(Part.BSplineCurve([Vector(16.782399, 1.495252, 0), Vector(16.742548, 1.493861, 0), Vector(16.664708, 1.491143, 0), Vector(16.552493, 1.46734, 0), Vector(16.448174, 1.429362, 0), Vector(16.368435, 1.384029, 0), Vector(16.309553, 1.339279, 0), Vector(16.267476, 1.300196, 0), Vector(16.226155, 1.256764, 0), Vector(16.188309, 1.206305, 0), Vector(16.150035, 1.152238, 0), Vector(16.115191, 1.091815, 0), Vector(16.081331, 1.02661, 0), Vector(16.060929, 0.980515, 0), Vector(16.050428, 0.956791, 0)], [4, 1, 1, 1, 1, 1, 1, 1, 1, 1, 1, 1, 4], [0, 1.472543308, 2.876219568, 4.221790263, 5.565193594, 6.249813518, 6.953379497, 7.687249741, 8.463570142, 9.283606569, 10.136032583, 11.040678096, 12], False, 3, [1, 1, 1, 1, 1, 1, 1, 1, 1, 1, 1, 1, 1, 1, 1], False), False)
sketch4.addGeometry(Part.BSplineCurve([Vector(17.486326, 0.946274, 0), Vector(17.485911, 0.964552, 0), Vector(17.485087, 1.000914, 0), Vector(17.474689, 1.05404, 0), Vector(17.459065, 1.10554, 0), Vector(17.437586, 1.155198, 0), Vector(17.408835, 1.202669, 0), Vector(17.374429, 1.248356, 0), Vector(17.333461, 1.292, 0), Vector(17.286516, 1.33268, 0), Vector(17.236104, 1.371449, 0), Vector(17.180854, 1.404363, 0), Vector(17.122432, 1.432508, 0), Vector(17.060774, 1.455718, 0), Vector(16.995678, 1.473177, 0), Vector(16.927452, 1.485713, 0), Vector(16.855964, 1.49355, 0), Vector(16.807192, 1.494679, 0), Vector(16.782399, 1.495252, 0)], [4, 1, 1, 1, 1, 1, 1, 1, 1, 1, 1, 1, 1, 1, 1, 1, 4], [0, 0.884392785, 1.759457502, 2.611959086, 3.489218968, 4.37281399, 5.2945488, 6.255912374, 7.266815255, 8.301784654, 9.332968512, 10.37626691, 11.440494194, 12.520033166, 13.637162961, 14.798855837, 16], False, 3, [1, 1, 1, 1, 1, 1, 1, 1, 1, 1, 1, 1, 1, 1, 1, 1, 1, 1, 1], False), False)
sketch4.addGeometry(Part.BSplineCurve([Vector(16.58889, 0.373457, 0), Vector(16.632191, 0.374192, 0), Vector(16.717007, 0.375632, 0), Vector(16.840902, 0.39304, 0), Vector(16.959375, 0.41712, 0), Vector(17.069802, 0.454005, 0), Vector(17.17045, 0.496846, 0), Vector(17.25777, 0.546698, 0), Vector(17.330537, 0.602113, 0), Vector(17.388398, 0.663945, 0), Vector(17.431927, 0.73026, 0), Vector(17.463754, 0.799377, 0), Vector(17.482554, 0.871901, 0), Vector(17.485064, 0.921396, 0), Vector(17.486326, 0.946274, 0)], [4, 1, 1, 1, 1, 1, 1, 1, 1, 1, 1, 1, 4], [0, 1.321986639, 2.589447074, 3.816329219, 5.01088745, 6.139805852, 7.153945165, 8.075214402, 8.924034688, 9.728124013, 10.488707548, 11.240355623, 12], False, 3, [1, 1, 1, 1, 1, 1, 1, 1, 1, 1, 1, 1, 1, 1, 1], False), False)
sketch4.addGeometry(Part.LineSegment(Vector(16.58889, 0.373457, 0), Vector(16.58889, 0.014483, 0)), False)
sketch4.addGeometry(Part.BSplineCurve([Vector(17.665813, -0.725902, 0), Vector(17.664282, -0.69329, 0), Vector(17.661229, -0.62823, 0), Vector(17.637921, -0.532512, 0), Vector(17.599582, -0.440289, 0), Vector(17.54591, -0.353133, 0), Vector(17.480574, -0.272357, 0), Vector(17.404209, -0.200286, 0), Vector(17.316181, -0.140816, 0), Vector(17.235161, -0.099727, 0), Vector(17.163396, -0.07169, 0), Vector(17.10198, -0.053015, 0), Vector(17.033224, -0.037201, 0), Vector(16.957957, -0.022489, 0), Vector(16.875614, -0.009968, 0), Vector(16.786284, 0.000474, 0), Vector(16.689948, 0.008829, 0), Vector(16.623257, 0.01256, 0), Vector(16.58889, 0.014483, 0)], [4, 1, 1, 1, 1, 1, 1, 1, 1, 1, 1, 1, 1, 1, 1, 1, 4], [0, 1.07054697, 2.135767047, 3.216561865, 4.33974944, 5.486079747, 6.621378074, 7.775625952, 8.963672916, 9.598146892, 10.304877434, 11.070270905, 11.915000392, 12.823868403, 13.805723172, 14.86925407, 16], False, 3, [1, 1, 1, 1, 1, 1, 1, 1, 1, 1, 1, 1, 1, 1, 1, 1, 1, 1, 1], False), False)
sketch4.addGeometry(Part.BSplineCurve([Vector(16.774687, -1.466286, 0), Vector(16.80744, -1.46567, 0), Vector(16.871487, -1.464466, 0), Vector(16.964942, -1.45339, 0), Vector(17.053849, -1.43726, 0), Vector(17.137222, -1.412347, 0), Vector(17.216153, -1.381566, 0), Vector(17.289535, -1.342918, 0), Vector(17.358331, -1.297573, 0), Vector(17.42166, -1.246034, 0), Vector(17.478606, -1.189612, 0), Vector(17.528745, -1.130599, 0), Vector(17.57137, -1.069243, 0), Vector(17.605753, -1.005205, 0), Vector(17.632904, -0.93875, 0), Vector(17.651387, -0.869691, 0), Vector(17.664239, -0.798594, 0), Vector(17.665285, -0.750265, 0), Vector(17.665813, -0.725902, 0)], [4, 1, 1, 1, 1, 1, 1, 1, 1, 1, 1, 1, 1, 1, 1, 1, 4], [0, 1.217147791, 2.380027433, 3.494444702, 4.572153297, 5.609568379, 6.639424714, 7.649109417, 8.668170816, 9.669597737, 10.625200337, 11.543417969, 12.441394052, 13.322311151, 14.205496177, 15.095365482, 16], False, 3, [1, 1, 1, 1, 1, 1, 1, 1, 1, 1, 1, 1, 1, 1, 1, 1, 1, 1, 1], False), False)
sketch4.addGeometry(Part.BSplineCurve([Vector(16.189951, -1.276983, 0), Vector(16.209548, -1.292092, 0), Vector(16.248681, -1.322262, 0), Vector(16.312449, -1.360763, 0), Vector(16.379514, -1.394124, 0), Vector(16.451328, -1.419608, 0), Vector(16.526343, -1.441186, 0), Vector(16.605771, -1.455306, 0), Vector(16.68891, -1.464994, 0), Vector(16.745678, -1.465849, 0), Vector(16.774687, -1.466286, 0)], [4, 1, 1, 1, 1, 1, 1, 1, 4], [0, 0.946170439, 1.889420265, 2.845303464, 3.807233317, 4.801018734, 5.828864929, 6.890507805, 8], False, 3, [1, 1, 1, 1, 1, 1, 1, 1, 1, 1, 1], False), False)
sketch4.addGeometry(Part.BSplineCurve([Vector(15.915813, -0.793209, 0), Vector(15.923996, -0.820158, 0), Vector(15.939913, -0.872576, 0), Vector(15.967008, -0.948017, 0), Vector(15.997876, -1.017175, 0), Vector(16.03099, -1.080558, 0), Vector(16.065769, -1.13879, 0), Vector(16.104684, -1.190332, 0), Vector(16.144853, -1.237447, 0), Vector(16.175132, -1.263992, 0), Vector(16.189951, -1.276983, 0)], [4, 1, 1, 1, 1, 1, 1, 1, 4], [0, 1.198163088, 2.33053128, 3.407730985, 4.417276592, 5.372219308, 6.28897303, 7.162600585, 8], False, 3, [1, 1, 1, 1, 1, 1, 1, 1, 1, 1, 1], False), False)
sketch4.addGeometry(Part.LineSegment(Vector(15.915813, -0.793209, 0), Vector(15.60171, -0.793209, 0)), False)
sketch4.addGeometry(Part.BSplineCurve([Vector(16.769078, -1.82526, 0), Vector(16.731659, -1.824392, 0), Vector(16.65803, -1.822684, 0), Vector(16.549786, -1.811005, 0), Vector(16.446465, -1.789675, 0), Vector(16.347925, -1.760972, 0), Vector(16.25408, -1.72458, 0), Vector(16.165216, -1.679262, 0), Vector(16.080786, -1.62595, 0), Vector(16.001587, -1.564016, 0), Vector(15.927629, -1.494735, 0), Vector(15.860876, -1.416876, 0), Vector(15.800216, -1.331879, 0), Vector(15.747273, -1.238756, 0), Vector(15.699637, -1.13871, 0), Vector(15.660456, -1.030462, 0), Vector(15.62597, -0.914978, 0), Vector(15.609937, -0.8345, 0), Vector(15.60171, -0.793209, 0)], [4, 1, 1, 1, 1, 1, 1, 1, 1, 1, 1, 1, 1, 1, 1, 1, 4], [0, 1.048658725, 2.063410685, 3.046034179, 4.001477787, 4.936774919, 5.862367409, 6.792675028, 7.730719943, 8.675894397, 9.627829632, 10.600096036, 11.597688215, 12.626045268, 13.701542398, 14.82072376, 16], False, 3, [1, 1, 1, 1, 1, 1, 1, 1, 1, 1, 1, 1, 1, 1, 1, 1, 1, 1, 1], False), False)
sketch4.addGeometry(Part.BSplineCurve([Vector(17.979915, -0.695753, 0), Vector(17.978121, -0.744763, 0), Vector(17.97454, -0.842552, 0), Vector(17.942536, -0.987027, 0), Vector(17.892923, -1.128252, 0), Vector(17.822466, -1.263327, 0), Vector(17.736598, -1.389707, 0), Vector(17.634441, -1.502784, 0), Vector(17.517155, -1.599982, 0), Vector(17.386349, -1.681192, 0), Vector(17.244632, -1.74611, 0), Vector(17.093056, -1.791168, 0), Vector(16.933806, -1.820514, 0), Vector(16.824599, -1.823661, 0), Vector(16.769078, -1.82526, 0)], [4, 1, 1, 1, 1, 1, 1, 1, 1, 1, 1, 1, 4], [0, 0.955779014, 1.907060117, 2.875433937, 3.871313158, 4.872415639, 5.851225146, 6.836215519, 7.83643374, 8.849228613, 9.86973379, 10.916971861, 12], False, 3, [1, 1, 1, 1, 1, 1, 1, 1, 1, 1, 1, 1, 1, 1, 1], False), False)
sketch4.addGeometry(Part.BSplineCurve([Vector(17.770981, -0.073858, 0), Vector(17.787822, -0.096916, 0), Vector(17.821229, -0.142654, 0), Vector(17.862465, -0.21619, 0), Vector(17.899874, -0.290542, 0), Vector(17.929024, -0.367701, 0), Vector(17.951598, -0.446774, 0), Vector(17.967734, -0.527897, 0), Vector(17.977758, -0.611135, 0), Vector(17.979194, -0.667447, 0), Vector(17.979915, -0.695753, 0)], [4, 1, 1, 1, 1, 1, 1, 1, 4], [0, 1.025084078, 2.033381695, 3.024893161, 4.013698104, 4.991890475, 5.976764909, 6.982997093, 8], False, 3, [1, 1, 1, 1, 1, 1, 1, 1, 1, 1, 1], False), False)
sketch4.addGeometry(Part.BSplineCurve([Vector(17.391674, 0.22482, 0), Vector(17.428906, 0.206841, 0), Vector(17.502673, 0.171222, 0), Vector(17.603223, 0.101366, 0), Vector(17.694501, 0.020709, 0), Vector(17.745405, -0.042233, 0), Vector(17.770981, -0.073858, 0)], [4, 1, 1, 1, 4], [0, 1.015518401, 2.012035669, 3.001164323, 4], False, 3, [1, 1, 1, 1, 1, 1, 1], False), False)
sketch4.addGeometry(Part.BSplineCurve([Vector(17.800428, 0.944872, 0), Vector(17.799265, 0.907865, 0), Vector(17.796988, 0.835448, 0), Vector(17.777654, 0.729727, 0), Vector(17.745118, 0.630085, 0), Vector(17.700048, 0.536104, 0), Vector(17.641706, 0.448379, 0), Vector(17.571034, 0.366713, 0), Vector(17.487531, 0.290744, 0), Vector(17.424252, 0.247225, 0), Vector(17.391674, 0.22482, 0)], [4, 1, 1, 1, 1, 1, 1, 1, 4], [0, 1.024540389, 2.004866551, 2.965041327, 3.920577974, 4.882998113, 5.874504559, 6.905732034, 8], False, 3, [1, 1, 1, 1, 1, 1, 1, 1, 1, 1, 1], False), False)
sketch4.addGeometry(Part.BSplineCurve([Vector(16.778193, 1.854227, 0), Vector(16.823875, 1.852847, 0), Vector(16.914244, 1.850119, 0), Vector(17.047007, 1.825205, 0), Vector(17.175034, 1.78578, 0), Vector(17.296923, 1.731306, 0), Vector(17.410142, 1.664118, 0), Vector(17.510878, 1.584154, 0), Vector(17.597767, 1.492954, 0), Vector(17.670661, 1.392222, 0), Vector(17.727736, 1.284566, 0), Vector(17.769822, 1.173766, 0), Vector(17.795444, 1.060084, 0), Vector(17.798765, 0.983327, 0), Vector(17.800428, 0.944872, 0)], [4, 1, 1, 1, 1, 1, 1, 1, 1, 1, 1, 1, 4], [0, 1.083050992, 2.142477498, 3.193116406, 4.255571735, 5.30263384, 6.308962982, 7.297363603, 8.282367274, 9.249857812, 10.179914175, 11.08814088, 12], False, 3, [1, 1, 1, 1, 1, 1, 1, 1, 1, 1, 1, 1, 1, 1, 1], False), False)
sketch4.addGeometry(Part.BSplineCurve([Vector(15.736326, 0.956791, 0), Vector(15.744835, 0.992023, 0), Vector(15.761471, 1.0609, 0), Vector(15.796168, 1.159307, 0), Vector(15.833967, 1.252431, 0), Vector(15.879357, 1.338527, 0), Vector(15.928865, 1.419326, 0), Vector(15.985588, 1.492995, 0), Vector(16.046908, 1.561408, 0), Vector(16.114733, 1.622121, 0), Vector(16.185861, 1.677099, 0), Vector(16.261296, 1.723974, 0), Vector(16.339519, 1.764298, 0), Vector(16.421072, 1.797518, 0), Vector(16.506198, 1.822544, 0), Vector(16.594128, 1.840701, 0), Vector(16.685091, 1.852492, 0), Vector(16.746839, 1.853642, 0), Vector(16.778193, 1.854227, 0)], [4, 1, 1, 1, 1, 1, 1, 1, 1, 1, 1, 1, 1, 1, 1, 1, 4], [0, 1.162005537, 2.271625781, 3.343758855, 4.383309926, 5.390229558, 6.379919256, 7.361854164, 8.333198761, 9.295911338, 10.242430842, 11.177959212, 12.116337295, 13.062827104, 14.020064771, 14.994644689, 16], False, 3, [1, 1, 1, 1, 1, 1, 1, 1, 1, 1, 1, 1, 1, 1, 1, 1, 1, 1, 1], False), False)
sketch4.addConstraint(Sketcher.Constraint("Block", 6))
sketch4.addConstraint(Sketcher.Constraint("Block", 7))
sketch4.addConstraint(Sketcher.Constraint("Block", 8))
sketch4.addConstraint(Sketcher.Constraint("Block", 9))
sketch4.addConstraint(Sketcher.Constraint("Block", 10))
sketch4.addConstraint(Sketcher.Constraint("Block", 11))
sketch4.addConstraint(Sketcher.Constraint("Block", 12))
sketch4.addConstraint(Sketcher.Constraint("Block", 13))
sketch4.addConstraint(Sketcher.Constraint("Block", 14))
sketch4.addConstraint(Sketcher.Constraint("Block", 15))
sketch4.addConstraint(Sketcher.Constraint("Block", 16))
sketch4.addConstraint(Sketcher.Constraint("Block", 17))
sketch4.addConstraint(Sketcher.Constraint("Block", 18))
sketch4.addConstraint(Sketcher.Constraint("Block", 20))
sketch4.addConstraint(Sketcher.Constraint("Block", 21))
sketch4.addConstraint(Sketcher.Constraint("Block", 22))
sketch4.addConstraint(Sketcher.Constraint("Block", 24))
sketch4.addConstraint(Sketcher.Constraint("Block", 25))
sketch4.addConstraint(Sketcher.Constraint("Block", 26))
sketch4.addConstraint(Sketcher.Constraint("Block", 27))
sketch4.addConstraint(Sketcher.Constraint("Block", 29))
sketch4.addConstraint(Sketcher.Constraint("Block", 30))
sketch4.addConstraint(Sketcher.Constraint("Block", 31))
sketch4.addConstraint(Sketcher.Constraint("Block", 32))
sketch4.addConstraint(Sketcher.Constraint("Block", 33))
sketch4.addConstraint(Sketcher.Constraint("Block", 34))
sketch4.addConstraint(Sketcher.Constraint("Block", 35))
sketch4.addConstraint(Sketcher.Constraint("Coincident", 0, 2, 1, 1))
sketch4.addConstraint(Sketcher.Constraint("Coincident", 1, 2, 2, 1))
sketch4.addConstraint(Sketcher.Constraint("Coincident", 2, 2, 3, 1))
sketch4.addConstraint(Sketcher.Constraint("Coincident", 3, 2, 4, 1))
sketch4.addConstraint(Sketcher.Constraint("Coincident", 4, 2, 5, 1))
sketch4.addConstraint(Sketcher.Constraint("Coincident", 5, 2, 0, 1))
sketch4.addConstraint(Sketcher.Constraint("Coincident", 19, 2, 20, 2))
sketch4.addConstraint(Sketcher.Constraint("Coincident", 22, 1, 23, 1))
sketch4.addConstraint(Sketcher.Constraint("Coincident", 23, 2, 24, 2))
sketch4.addConstraint(Sketcher.Constraint("Coincident", 27, 1, 28, 1))
sketch4.addConstraint(Sketcher.Constraint("Coincident", 28, 2, 29, 2))
sketch4.addConstraint(Sketcher.Constraint("Coincident", 35, 1, 19, 1))
sketch4.addConstraint(Sketcher.Constraint("Horizontal", 0))
sketch4.addConstraint(Sketcher.Constraint("Horizontal", 2))
sketch4.addConstraint(Sketcher.Constraint("Vertical", 3))
sketch4.addConstraint(Sketcher.Constraint("Horizontal", 4))
sketch4.addConstraint(Sketcher.Constraint("Vertical", 5))
sketch4.addConstraint(Sketcher.Constraint("Equal", 4, 19))
sketch4.addConstraint(Sketcher.Constraint("DistanceY", 5, 1, 5, 2, Q("3.5 mm")))
sketch4.addConstraint(Sketcher.Constraint("DistanceY", 4, 2, 23, 2, Q("1.75 mm")))
sketch4.addConstraint(Sketcher.Constraint("Distance", 1, Q("0.413598 mm")))
sketch4.addConstraint(Sketcher.Constraint("DistanceX", 2, 1, 2, 2, Q("0.538462 mm")))
sketch4.addConstraint(Sketcher.Constraint("DistanceX", 0, 2, 0, 1, Q("0.647135 mm")))
sketch4.addConstraint(Sketcher.Constraint("DistanceX", -1, 1, 4, 2, Q("10.306838 mm")))
sketch4.setExpression("Constraints[45]", "Params.sketch4_height")
pocket3 = body.newObject("PartDesign::Pocket", "Pocket002")
pocket3.Profile = sketch4
pocket3.setExpression("Length", "Params.pocket3_length")

sketch5 = body.newObject("Sketcher::SketchObject", "Sketch004")
sketch5.AttachmentSupport = (doc.getObject("XY_Plane"), [""])
sketch5.MapMode = "FlatFace"
sketch5.AttachmentOffset = App.Placement(Vector(0, 0, 10), App.Rotation())
sketch5.addGeometry(Part.Circle(Vector(0, 0, 0), Vector(0, 0, 1), 7), False)
sketch5.addGeometry(Part.Circle(Vector(0, 0, 0), Vector(0, 0, 1), 5.15), False)
sketch5.addConstraint(Sketcher.Constraint("Coincident", 0, 3, -1, 1))
sketch5.addConstraint(Sketcher.Constraint("Coincident", 1, 3, -1, 1))
sketch5.addConstraint(Sketcher.Constraint("Diameter", 0, Q("14 mm")))
sketch5.addConstraint(Sketcher.Constraint("Diameter", 1, Q("10.3 mm")))
sketch5.setExpression("Constraints[2]", "Params.sketch5_diameter")
sketch5.setExpression("Constraints[3]", "Params.sketch5_diameter2")
pad2 = body.newObject("PartDesign::Pad", "Pad001")
pad2.Profile = sketch5
pad2.setExpression("Length", "Params.pad2_length")

doc.recompute()
